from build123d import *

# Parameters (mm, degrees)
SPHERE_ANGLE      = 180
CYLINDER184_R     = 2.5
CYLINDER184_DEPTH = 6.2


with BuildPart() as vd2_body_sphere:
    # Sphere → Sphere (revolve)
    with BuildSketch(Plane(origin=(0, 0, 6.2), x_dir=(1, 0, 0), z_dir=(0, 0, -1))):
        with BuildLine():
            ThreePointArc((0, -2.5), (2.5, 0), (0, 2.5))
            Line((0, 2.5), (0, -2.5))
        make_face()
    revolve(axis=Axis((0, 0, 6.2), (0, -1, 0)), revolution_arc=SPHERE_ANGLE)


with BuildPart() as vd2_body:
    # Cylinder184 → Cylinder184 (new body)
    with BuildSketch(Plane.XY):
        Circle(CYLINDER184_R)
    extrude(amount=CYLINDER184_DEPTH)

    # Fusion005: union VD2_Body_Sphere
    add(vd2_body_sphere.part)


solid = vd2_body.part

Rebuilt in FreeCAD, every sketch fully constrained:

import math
import FreeCAD as App
import Part
import Sketcher

V = App.Vector
Q = App.Units.Quantity

doc = App.newDocument("Part")
params = doc.addObject("Spreadsheet::Sheet", "Params")
for row, (alias, value) in enumerate([
    ("sketch1_radius", "2.5 mm"),
    ("revolution_angle", "180 deg"),
    ("sketch2_diameter", "5 mm"),
    ("pad1_length", "6.2 mm"),
], start=1):
    params.set(f"A{row}", alias)
    params.set(f"B{row}", "=" + value)
    params.setAlias(f"B{row}", alias)

body = doc.addObject("PartDesign::Body", "Body")

# Sketch on XY plane
sketch1 = body.newObject("Sketcher::SketchObject", "Sketch")
sketch1.AttachmentSupport = (doc.getObject("XY_Plane"), [""])
sketch1.MapMode = "FlatFace"
sketch1.AttachmentOffset = App.Placement(V(0, 0, 6.2), App.Rotation())
sketch1.addGeometry([
    Part.ArcOfCircle(Part.Circle(V(0, 0, 0), V(0, 0, 1), 2.5), math.radians(-90), math.radians(90)),
    Part.LineSegment(V(0, -2.5, 0), V(0, 2.5, 0)),
], False)
sketch1.addConstraint([
    Sketcher.Constraint("Coincident", 0, 1, 1, 1),
    Sketcher.Constraint("Coincident", 1, 2, 0, 2),
    Sketcher.Constraint("Vertical", 1),
    Sketcher.Constraint("Coincident", 0, 3, -1, 1),
    Sketcher.Constraint("PointOnObject", 0, 1, -2),
    Sketcher.Constraint("Radius", 0, Q("2.5 mm")),
])
sketch1.setExpression("Constraints[5]", "Params.sketch1_radius")
revolution = body.newObject("PartDesign::Revolution", "Revolution")
revolution.Profile = sketch1
revolution.ReferenceAxis = (sketch1, ["V_Axis"])
revolution.setExpression("Angle", "Params.revolution_angle")
revolution.Reversed = True
body2 = doc.addObject("PartDesign::Body", "Body001")

# Sketch on XY plane
sketch2 = body2.newObject("Sketcher::SketchObject", "Sketch001")
sketch2.AttachmentSupport = (doc.getObject("XY_Plane001"), [""])
sketch2.MapMode = "FlatFace"
sketch2.addGeometry(Part.Circle(V(0, 0, 0), V(0, 0, 1), 2.5), False)
sketch2.addConstraint([
    Sketcher.Constraint("Coincident", 0, 3, -1, 1),
    Sketcher.Constraint("Diameter", 0, Q("5 mm")),
])
sketch2.setExpression("Constraints[1]", "Params.sketch2_diameter")
pad1 = body2.newObject("PartDesign::Pad", "Pad")
pad1.Profile = sketch2
pad1.setExpression("Length", "Params.pad1_length")
doc.recompute()

boolean = body2.newObject("PartDesign::Boolean", "Boolean")
boolean.Type = "Fuse"
boolean.addObjects([body])

doc.recompute()
